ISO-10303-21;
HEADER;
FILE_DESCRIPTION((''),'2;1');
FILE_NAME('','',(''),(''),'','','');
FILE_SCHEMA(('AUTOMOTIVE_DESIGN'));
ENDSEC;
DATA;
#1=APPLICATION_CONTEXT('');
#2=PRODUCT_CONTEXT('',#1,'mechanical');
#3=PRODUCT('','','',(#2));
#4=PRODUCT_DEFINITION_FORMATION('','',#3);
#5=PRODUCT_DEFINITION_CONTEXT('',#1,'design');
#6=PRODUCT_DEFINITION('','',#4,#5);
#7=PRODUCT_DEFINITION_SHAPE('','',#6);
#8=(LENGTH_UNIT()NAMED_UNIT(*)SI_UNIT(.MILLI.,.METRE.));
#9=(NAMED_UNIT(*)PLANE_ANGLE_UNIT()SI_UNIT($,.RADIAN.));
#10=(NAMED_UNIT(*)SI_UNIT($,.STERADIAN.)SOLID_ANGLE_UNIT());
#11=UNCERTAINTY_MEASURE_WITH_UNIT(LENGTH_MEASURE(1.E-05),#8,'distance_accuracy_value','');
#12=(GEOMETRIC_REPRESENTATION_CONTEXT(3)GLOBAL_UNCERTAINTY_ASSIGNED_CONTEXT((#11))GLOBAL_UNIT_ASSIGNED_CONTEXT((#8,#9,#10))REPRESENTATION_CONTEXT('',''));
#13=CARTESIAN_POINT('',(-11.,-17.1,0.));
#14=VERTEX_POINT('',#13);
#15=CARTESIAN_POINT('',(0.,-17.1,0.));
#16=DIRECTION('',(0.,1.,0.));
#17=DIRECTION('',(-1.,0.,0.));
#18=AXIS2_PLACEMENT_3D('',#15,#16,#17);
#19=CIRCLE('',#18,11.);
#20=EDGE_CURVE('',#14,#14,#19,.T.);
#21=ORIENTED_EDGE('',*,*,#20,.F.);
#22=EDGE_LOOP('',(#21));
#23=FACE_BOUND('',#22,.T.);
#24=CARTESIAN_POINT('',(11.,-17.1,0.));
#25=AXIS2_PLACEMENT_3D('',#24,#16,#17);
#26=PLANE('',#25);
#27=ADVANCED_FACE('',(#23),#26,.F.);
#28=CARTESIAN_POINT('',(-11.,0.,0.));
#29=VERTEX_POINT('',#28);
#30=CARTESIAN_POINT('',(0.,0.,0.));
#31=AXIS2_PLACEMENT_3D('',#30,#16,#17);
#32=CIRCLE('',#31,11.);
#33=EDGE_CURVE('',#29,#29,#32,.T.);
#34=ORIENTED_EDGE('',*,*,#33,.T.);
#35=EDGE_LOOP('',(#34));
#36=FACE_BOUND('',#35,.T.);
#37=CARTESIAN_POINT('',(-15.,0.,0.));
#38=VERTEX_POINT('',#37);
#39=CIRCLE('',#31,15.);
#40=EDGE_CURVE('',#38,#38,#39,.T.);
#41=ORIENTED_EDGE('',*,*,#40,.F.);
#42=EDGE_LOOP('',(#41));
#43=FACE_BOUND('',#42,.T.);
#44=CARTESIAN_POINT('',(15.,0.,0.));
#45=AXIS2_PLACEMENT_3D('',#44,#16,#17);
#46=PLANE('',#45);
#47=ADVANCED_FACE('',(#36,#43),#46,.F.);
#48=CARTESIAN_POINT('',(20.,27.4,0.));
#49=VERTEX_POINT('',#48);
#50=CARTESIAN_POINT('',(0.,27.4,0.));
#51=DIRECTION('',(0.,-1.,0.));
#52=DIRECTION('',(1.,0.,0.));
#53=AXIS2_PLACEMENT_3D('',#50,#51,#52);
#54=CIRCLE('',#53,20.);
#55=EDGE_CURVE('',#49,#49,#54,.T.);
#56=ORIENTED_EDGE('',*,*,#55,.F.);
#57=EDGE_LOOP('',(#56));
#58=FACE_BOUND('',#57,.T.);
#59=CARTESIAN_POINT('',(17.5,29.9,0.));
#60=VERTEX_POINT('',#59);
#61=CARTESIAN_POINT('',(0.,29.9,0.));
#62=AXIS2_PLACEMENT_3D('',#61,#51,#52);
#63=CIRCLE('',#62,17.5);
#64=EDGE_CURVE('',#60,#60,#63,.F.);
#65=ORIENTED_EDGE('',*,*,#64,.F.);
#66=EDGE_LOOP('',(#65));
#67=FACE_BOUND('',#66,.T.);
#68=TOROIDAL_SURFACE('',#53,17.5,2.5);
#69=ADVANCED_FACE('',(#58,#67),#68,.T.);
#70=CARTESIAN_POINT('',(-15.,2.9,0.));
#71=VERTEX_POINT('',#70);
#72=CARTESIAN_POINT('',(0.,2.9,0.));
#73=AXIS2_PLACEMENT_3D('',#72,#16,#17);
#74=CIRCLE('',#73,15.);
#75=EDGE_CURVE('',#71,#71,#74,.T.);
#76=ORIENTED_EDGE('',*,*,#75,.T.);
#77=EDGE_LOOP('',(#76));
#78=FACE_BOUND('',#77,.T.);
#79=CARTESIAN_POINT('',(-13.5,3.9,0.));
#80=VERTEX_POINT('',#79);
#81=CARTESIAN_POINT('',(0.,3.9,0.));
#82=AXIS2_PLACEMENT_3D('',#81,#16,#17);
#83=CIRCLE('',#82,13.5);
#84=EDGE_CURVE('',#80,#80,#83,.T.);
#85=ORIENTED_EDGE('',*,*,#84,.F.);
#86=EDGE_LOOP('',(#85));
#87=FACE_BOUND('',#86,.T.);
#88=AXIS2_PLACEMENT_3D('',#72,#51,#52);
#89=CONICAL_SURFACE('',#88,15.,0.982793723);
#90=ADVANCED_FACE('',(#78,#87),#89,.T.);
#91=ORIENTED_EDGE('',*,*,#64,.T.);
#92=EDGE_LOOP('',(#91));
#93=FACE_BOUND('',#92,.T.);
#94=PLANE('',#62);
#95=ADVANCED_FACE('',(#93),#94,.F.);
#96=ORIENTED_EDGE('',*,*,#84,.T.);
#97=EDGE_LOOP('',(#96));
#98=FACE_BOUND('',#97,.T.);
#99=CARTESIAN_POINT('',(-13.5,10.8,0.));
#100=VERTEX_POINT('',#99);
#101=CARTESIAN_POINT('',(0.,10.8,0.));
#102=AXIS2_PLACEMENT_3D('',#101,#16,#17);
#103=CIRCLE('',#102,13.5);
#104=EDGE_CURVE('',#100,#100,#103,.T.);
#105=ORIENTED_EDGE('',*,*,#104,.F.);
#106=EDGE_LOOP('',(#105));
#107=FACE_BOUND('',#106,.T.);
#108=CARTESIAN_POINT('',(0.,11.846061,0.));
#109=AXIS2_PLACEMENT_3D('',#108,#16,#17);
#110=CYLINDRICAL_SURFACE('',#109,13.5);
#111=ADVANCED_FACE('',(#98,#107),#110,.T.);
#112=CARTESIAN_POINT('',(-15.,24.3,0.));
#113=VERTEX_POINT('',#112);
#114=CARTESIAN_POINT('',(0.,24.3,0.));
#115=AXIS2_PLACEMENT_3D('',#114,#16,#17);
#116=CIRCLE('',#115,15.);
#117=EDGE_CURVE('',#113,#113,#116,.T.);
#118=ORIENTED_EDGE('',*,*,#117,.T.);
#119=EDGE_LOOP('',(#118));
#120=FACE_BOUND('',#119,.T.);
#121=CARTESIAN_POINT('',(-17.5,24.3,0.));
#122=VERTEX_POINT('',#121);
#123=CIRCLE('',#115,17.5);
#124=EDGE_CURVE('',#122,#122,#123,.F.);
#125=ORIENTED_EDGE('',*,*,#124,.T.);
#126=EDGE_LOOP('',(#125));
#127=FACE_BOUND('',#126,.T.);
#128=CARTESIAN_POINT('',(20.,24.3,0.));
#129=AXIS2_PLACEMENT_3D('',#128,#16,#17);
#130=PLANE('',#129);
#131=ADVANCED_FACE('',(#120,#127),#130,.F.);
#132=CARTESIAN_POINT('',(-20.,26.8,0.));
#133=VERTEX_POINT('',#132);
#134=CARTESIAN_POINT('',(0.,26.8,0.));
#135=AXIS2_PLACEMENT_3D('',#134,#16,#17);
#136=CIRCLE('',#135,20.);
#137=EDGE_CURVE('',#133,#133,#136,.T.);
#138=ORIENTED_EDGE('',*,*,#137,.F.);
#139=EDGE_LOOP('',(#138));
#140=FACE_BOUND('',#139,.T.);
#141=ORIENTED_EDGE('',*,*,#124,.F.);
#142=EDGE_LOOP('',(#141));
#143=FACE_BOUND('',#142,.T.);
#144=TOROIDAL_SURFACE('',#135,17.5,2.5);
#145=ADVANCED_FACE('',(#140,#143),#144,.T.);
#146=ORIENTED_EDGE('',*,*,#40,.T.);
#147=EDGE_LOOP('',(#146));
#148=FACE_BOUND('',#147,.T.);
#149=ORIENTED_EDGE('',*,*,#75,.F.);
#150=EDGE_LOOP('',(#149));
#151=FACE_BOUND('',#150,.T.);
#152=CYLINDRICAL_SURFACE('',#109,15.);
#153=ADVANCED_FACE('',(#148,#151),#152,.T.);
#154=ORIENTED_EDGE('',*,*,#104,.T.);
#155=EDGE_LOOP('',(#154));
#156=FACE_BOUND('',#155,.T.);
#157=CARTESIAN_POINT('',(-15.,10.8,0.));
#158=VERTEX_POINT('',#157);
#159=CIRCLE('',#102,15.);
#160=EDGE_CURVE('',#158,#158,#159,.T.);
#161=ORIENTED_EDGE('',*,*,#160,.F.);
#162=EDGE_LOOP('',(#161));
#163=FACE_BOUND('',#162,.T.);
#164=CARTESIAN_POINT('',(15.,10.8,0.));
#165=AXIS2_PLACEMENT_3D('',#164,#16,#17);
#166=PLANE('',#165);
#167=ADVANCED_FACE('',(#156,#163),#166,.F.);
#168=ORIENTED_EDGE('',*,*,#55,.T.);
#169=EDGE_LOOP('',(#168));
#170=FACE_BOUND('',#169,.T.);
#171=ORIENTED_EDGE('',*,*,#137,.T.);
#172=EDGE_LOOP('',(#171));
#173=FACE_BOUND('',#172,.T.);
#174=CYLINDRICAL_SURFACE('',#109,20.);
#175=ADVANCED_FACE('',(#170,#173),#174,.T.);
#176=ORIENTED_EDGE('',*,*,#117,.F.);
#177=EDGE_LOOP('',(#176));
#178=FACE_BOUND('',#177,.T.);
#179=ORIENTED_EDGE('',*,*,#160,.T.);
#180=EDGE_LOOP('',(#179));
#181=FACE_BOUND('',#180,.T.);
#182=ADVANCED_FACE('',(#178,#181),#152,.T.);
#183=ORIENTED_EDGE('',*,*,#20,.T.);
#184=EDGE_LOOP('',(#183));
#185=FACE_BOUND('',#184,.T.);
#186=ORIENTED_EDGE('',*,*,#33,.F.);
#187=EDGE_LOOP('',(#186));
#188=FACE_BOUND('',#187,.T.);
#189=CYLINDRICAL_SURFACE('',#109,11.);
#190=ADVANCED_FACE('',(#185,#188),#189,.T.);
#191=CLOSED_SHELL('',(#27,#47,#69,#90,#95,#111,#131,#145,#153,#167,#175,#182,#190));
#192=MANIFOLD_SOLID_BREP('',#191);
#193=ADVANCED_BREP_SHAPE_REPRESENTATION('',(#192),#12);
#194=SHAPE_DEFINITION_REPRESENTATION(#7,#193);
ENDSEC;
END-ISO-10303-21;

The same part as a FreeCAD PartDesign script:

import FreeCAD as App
import Part
import Sketcher

V = App.Vector


def edges_at(feature, points):
    """Names of the edges that pass closest to the given points."""
    edges = feature.Shape.Edges
    near = lambda p: min(range(len(edges)), key=lambda i: edges[i].distToShape(Part.Vertex(*p))[0])
    return sorted({f"Edge{near(p) + 1}" for p in points})


def add_polygon(sketch, points):
    """Adds a closed chain of lines whose ends are joined by coincident constraints."""
    first, n = sketch.GeometryCount, len(points)
    for a, b in zip(points, points[1:] + points[:1]):
        sketch.addGeometry(Part.LineSegment(App.Vector(*a, 0), App.Vector(*b, 0)), False)
    for i in range(n):
        sketch.addConstraint(Sketcher.Constraint("Coincident", first + i, 2, first + (i + 1) % n, 1))

doc = App.newDocument("Part")
body = doc.addObject("PartDesign::Body", "Body")

# Sketch on XY plane
sketch1 = body.newObject("Sketcher::SketchObject", "Sketch")
sketch1.AttachmentSupport = (doc.getObject("XY_Plane"), [""])
sketch1.MapMode = "FlatFace"
add_polygon(sketch1, [(20, 29.9), (0, 29.9), (0, -17.1), (11, -17.1), (11, 0), (15, 0), (15, 2.9), (13.5, 3.9), (13.5, 10.8), (15, 10.8), (15, 24.3), (20, 24.3)])  # lines 0-11
sketch1.addConstraint(Sketcher.Constraint("Horizontal", 0))
sketch1.addConstraint(Sketcher.Constraint("Vertical", 1))
sketch1.addConstraint(Sketcher.Constraint("Horizontal", 2))
sketch1.addConstraint(Sketcher.Constraint("Vertical", 3))
sketch1.addConstraint(Sketcher.Constraint("Horizontal", 4))
sketch1.addConstraint(Sketcher.Constraint("Vertical", 5))
sketch1.addConstraint(Sketcher.Constraint("Vertical", 7))
sketch1.addConstraint(Sketcher.Constraint("Horizontal", 8))
sketch1.addConstraint(Sketcher.Constraint("Vertical", 9))
sketch1.addConstraint(Sketcher.Constraint("Horizontal", 10))
sketch1.addConstraint(Sketcher.Constraint("Vertical", 11))
sketch1.addConstraint(Sketcher.Constraint("PointOnObject", 0, 2, -2))
sketch1.addConstraint(Sketcher.Constraint("PointOnObject", 3, 2, -1))
sketch1.addConstraint(Sketcher.Constraint("Vertical", 5, 2, 8, 2))
sketch1.addConstraint(Sketcher.Constraint("DistanceX", 0, 2, 0, 1, 20.0))
sketch1.addConstraint(Sketcher.Constraint("DistanceX", 2, 1, 2, 2, 11.0))
sketch1.addConstraint(Sketcher.Constraint("DistanceX", 4, 1, 4, 2, 4.0))
sketch1.addConstraint(Sketcher.Constraint("DistanceY", 1, 2, 1, 1, 47.0))
sketch1.addConstraint(Sketcher.Constraint("DistanceX", 8, 1, 8, 2, 1.5))
sketch1.addConstraint(Sketcher.Constraint("DistanceY", 3, 1, 3, 2, 17.1))
sketch1.addConstraint(Sketcher.Constraint("DistanceY", 5, 1, 5, 2, 2.9))
sketch1.addConstraint(Sketcher.Constraint("DistanceY", 7, 1, 7, 2, 6.9))
sketch1.addConstraint(Sketcher.Constraint("DistanceY", 9, 1, 9, 2, 13.5))
sketch1.addConstraint(Sketcher.Constraint("DistanceY", 11, 1, 11, 2, 5.6))
revolution = body.newObject("PartDesign::Revolution", "Revolution")
revolution.Profile = sketch1
revolution.ReferenceAxis = (sketch1, ["V_Axis"])
revolution.Angle = 360
doc.recompute()

fillet = body.newObject("PartDesign::Fillet", "Fillet")
fillet.Base = (revolution, edges_at(revolution, [(20, 24.3, 0), (20, 29.9, 0)]))
fillet.Radius = 2.5

doc.recompute()
